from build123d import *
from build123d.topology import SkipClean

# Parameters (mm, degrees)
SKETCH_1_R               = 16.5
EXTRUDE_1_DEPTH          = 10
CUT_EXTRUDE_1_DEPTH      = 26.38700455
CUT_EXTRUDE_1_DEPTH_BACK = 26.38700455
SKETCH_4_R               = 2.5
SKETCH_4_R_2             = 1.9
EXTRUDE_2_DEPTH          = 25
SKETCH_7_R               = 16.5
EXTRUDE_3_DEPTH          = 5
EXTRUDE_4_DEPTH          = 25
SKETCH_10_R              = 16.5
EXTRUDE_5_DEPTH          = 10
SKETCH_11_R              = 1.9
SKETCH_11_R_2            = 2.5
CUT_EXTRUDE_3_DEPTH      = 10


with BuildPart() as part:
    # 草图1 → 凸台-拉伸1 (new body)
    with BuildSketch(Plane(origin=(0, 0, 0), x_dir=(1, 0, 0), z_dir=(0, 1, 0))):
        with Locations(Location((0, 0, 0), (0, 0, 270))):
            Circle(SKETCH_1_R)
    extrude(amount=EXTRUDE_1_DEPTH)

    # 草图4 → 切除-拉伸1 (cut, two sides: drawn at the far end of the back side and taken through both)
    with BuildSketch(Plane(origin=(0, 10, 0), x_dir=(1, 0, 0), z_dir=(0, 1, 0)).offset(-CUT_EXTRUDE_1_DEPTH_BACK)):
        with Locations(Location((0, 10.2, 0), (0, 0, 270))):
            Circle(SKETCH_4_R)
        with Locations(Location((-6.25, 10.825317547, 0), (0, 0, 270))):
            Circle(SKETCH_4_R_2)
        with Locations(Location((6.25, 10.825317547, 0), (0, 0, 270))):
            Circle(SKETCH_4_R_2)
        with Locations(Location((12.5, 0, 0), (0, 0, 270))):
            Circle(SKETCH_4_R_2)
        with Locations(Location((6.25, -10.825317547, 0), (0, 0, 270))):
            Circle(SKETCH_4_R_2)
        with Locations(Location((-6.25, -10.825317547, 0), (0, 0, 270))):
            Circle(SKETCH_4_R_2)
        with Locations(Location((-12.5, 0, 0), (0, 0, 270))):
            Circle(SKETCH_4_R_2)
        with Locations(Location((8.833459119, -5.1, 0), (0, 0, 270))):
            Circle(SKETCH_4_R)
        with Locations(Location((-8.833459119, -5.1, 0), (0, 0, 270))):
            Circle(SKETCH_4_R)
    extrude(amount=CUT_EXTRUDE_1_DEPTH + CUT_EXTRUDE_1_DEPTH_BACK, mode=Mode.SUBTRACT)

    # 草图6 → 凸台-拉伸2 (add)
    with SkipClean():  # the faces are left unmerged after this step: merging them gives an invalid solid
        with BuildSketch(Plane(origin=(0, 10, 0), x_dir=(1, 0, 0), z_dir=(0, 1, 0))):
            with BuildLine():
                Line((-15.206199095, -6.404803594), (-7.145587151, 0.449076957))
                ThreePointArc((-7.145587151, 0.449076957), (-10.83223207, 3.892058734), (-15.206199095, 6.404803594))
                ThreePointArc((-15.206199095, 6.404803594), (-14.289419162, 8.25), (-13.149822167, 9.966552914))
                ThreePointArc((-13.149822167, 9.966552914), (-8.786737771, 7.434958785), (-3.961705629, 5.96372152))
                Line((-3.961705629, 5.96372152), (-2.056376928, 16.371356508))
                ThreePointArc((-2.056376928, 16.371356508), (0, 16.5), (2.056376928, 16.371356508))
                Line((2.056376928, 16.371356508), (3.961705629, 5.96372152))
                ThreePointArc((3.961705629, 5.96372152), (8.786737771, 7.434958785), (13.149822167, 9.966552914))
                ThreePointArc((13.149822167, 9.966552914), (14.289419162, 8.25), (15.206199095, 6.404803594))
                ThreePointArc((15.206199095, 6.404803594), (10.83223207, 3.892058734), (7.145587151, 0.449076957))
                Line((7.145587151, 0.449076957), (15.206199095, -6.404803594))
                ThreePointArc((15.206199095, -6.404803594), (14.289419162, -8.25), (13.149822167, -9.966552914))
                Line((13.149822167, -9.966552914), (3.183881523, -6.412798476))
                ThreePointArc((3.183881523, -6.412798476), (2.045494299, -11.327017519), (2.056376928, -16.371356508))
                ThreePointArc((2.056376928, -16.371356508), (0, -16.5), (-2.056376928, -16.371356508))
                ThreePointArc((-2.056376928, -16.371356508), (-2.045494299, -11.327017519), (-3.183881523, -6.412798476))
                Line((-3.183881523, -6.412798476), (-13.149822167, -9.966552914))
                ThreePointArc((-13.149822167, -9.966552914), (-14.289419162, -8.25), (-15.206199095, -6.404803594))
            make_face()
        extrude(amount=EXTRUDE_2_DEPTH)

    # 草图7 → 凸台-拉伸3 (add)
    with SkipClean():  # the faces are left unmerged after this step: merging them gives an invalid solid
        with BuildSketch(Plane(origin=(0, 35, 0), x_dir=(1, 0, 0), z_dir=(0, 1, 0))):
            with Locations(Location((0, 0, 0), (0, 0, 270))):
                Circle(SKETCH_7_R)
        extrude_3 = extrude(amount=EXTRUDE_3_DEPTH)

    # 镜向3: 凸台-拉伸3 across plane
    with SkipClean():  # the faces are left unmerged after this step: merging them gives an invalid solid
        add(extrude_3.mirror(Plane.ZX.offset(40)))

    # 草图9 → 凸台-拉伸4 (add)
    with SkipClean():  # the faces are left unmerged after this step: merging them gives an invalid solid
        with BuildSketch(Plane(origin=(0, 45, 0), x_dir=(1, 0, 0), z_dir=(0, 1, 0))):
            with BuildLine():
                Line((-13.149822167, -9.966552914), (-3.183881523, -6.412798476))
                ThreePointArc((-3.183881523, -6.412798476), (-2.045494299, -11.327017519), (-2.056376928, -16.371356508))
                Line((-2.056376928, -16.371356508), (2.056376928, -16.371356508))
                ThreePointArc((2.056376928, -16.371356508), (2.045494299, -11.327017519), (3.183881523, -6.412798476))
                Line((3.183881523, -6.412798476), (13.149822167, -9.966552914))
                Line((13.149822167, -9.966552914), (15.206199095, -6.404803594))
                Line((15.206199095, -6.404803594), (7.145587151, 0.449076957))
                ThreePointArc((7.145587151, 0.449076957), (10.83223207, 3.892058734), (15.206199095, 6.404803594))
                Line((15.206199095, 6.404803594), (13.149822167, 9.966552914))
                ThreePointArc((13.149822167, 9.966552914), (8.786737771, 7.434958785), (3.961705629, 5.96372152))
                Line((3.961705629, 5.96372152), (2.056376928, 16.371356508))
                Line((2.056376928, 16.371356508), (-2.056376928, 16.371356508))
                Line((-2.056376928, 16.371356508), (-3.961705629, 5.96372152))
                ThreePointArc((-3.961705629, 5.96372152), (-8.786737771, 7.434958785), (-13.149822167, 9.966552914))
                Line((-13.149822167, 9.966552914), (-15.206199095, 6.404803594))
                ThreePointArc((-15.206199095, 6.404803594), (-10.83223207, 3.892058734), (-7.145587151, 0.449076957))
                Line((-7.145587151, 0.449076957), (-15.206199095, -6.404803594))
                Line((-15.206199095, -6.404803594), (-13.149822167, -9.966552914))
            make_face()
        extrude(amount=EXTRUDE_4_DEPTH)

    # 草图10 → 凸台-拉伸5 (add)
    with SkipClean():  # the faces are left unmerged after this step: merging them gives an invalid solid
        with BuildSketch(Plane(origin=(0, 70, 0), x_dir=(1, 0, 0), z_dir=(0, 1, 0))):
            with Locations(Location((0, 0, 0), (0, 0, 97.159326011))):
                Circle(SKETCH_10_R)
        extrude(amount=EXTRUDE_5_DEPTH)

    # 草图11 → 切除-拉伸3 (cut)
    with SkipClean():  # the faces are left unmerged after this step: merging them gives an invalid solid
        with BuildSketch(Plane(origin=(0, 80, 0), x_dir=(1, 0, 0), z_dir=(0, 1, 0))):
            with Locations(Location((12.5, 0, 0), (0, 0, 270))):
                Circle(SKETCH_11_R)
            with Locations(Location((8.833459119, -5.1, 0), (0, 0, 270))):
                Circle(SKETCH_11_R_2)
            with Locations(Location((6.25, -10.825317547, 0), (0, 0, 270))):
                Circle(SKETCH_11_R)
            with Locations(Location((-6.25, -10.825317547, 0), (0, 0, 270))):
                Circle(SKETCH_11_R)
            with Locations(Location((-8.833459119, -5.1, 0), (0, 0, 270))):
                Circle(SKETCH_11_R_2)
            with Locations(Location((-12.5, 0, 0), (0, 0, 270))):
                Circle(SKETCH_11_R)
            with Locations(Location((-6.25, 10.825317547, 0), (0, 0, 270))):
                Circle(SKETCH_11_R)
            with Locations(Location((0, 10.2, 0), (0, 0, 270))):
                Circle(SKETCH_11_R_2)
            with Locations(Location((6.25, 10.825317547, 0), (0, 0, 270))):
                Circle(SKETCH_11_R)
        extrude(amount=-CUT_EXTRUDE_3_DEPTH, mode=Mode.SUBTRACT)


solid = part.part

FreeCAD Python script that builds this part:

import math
import FreeCAD as App
import Part
import Sketcher

V = App.Vector
Q = App.Units.Quantity

doc = App.newDocument("Part")
body = doc.addObject("PartDesign::Body", "Body")

sketch1 = body.newObject("Sketcher::SketchObject", "Sketch")
sketch1.AttachmentSupport = (doc.getObject("XZ_Plane"), [""])
sketch1.MapMode = "FlatFace"
sketch1.addGeometry(Part.Circle(V(0, 0, 0), V(0, 0, 1), 16.5), False)
sketch1.addConstraint(Sketcher.Constraint("Coincident", 0, 3, -1, 1))
sketch1.addConstraint(Sketcher.Constraint("Diameter", 0, Q("33 mm")))
pad1 = body.newObject("PartDesign::Pad", "Pad")
pad1.Profile = sketch1
pad1.Length = 10
pad1.Reversed = True

sketch2 = body.newObject("Sketcher::SketchObject", "Sketch001")
sketch2.AttachmentSupport = (doc.getObject("XZ_Plane"), [""])
sketch2.MapMode = "FlatFace"
sketch2.AttachmentOffset = App.Placement(V(0, 0, -10), App.Rotation())
sketch2.addGeometry(Part.Circle(V(0, -10.2, 0), V(0, 0, 1), 2.5), False)
sketch2.addGeometry(Part.Circle(V(-6.25, -10.825318, 0), V(0, 0, 1), 1.9), False)
sketch2.addGeometry(Part.Circle(V(6.25, -10.825318, 0), V(0, 0, 1), 1.9), False)
sketch2.addGeometry(Part.Circle(V(12.5, 0, 0), V(0, 0, 1), 1.9), False)
sketch2.addGeometry(Part.Circle(V(6.25, 10.825318, 0), V(0, 0, 1), 1.9), False)
sketch2.addGeometry(Part.Circle(V(-6.25, 10.825318, 0), V(0, 0, 1), 1.9), False)
sketch2.addGeometry(Part.Circle(V(-12.5, 0, 0), V(0, 0, 1), 1.9), False)
sketch2.addGeometry(Part.Circle(V(8.833459, 5.1, 0), V(0, 0, 1), 2.5), False)
sketch2.addGeometry(Part.Circle(V(-8.833459, 5.1, 0), V(0, 0, 1), 2.5), False)
sketch2.addConstraint(Sketcher.Constraint("Equal", 1, 2))
sketch2.addConstraint(Sketcher.Constraint("Equal", 2, 3))
sketch2.addConstraint(Sketcher.Constraint("Equal", 3, 4))
sketch2.addConstraint(Sketcher.Constraint("Equal", 4, 5))
sketch2.addConstraint(Sketcher.Constraint("Equal", 5, 6))
sketch2.addConstraint(Sketcher.Constraint("Equal", 0, 7))
sketch2.addConstraint(Sketcher.Constraint("Equal", 7, 8))
sketch2.addConstraint(Sketcher.Constraint("Symmetric", 1, 3, 4, 3, -1, 1))
sketch2.addConstraint(Sketcher.Constraint("Symmetric", 2, 3, 5, 3, -1, 1))
sketch2.addConstraint(Sketcher.Constraint("Symmetric", 3, 3, 6, 3, -1, 1))
sketch2.addConstraint(Sketcher.Constraint("Symmetric", 1, 3, 2, 3, -2))
sketch2.addConstraint(Sketcher.Constraint("Symmetric", 7, 3, 8, 3, -2))
sketch2.addConstraint(Sketcher.Constraint("PointOnObject", 0, 3, -2))
sketch2.addConstraint(Sketcher.Constraint("PointOnObject", 3, 3, -1))
sketch2.addConstraint(Sketcher.Constraint("Diameter", 0, Q("5 mm")))
sketch2.addConstraint(Sketcher.Constraint("Diameter", 1, Q("3.8 mm")))
sketch2.addConstraint(Sketcher.Constraint("DistanceY", 0, 3, -1, 1, Q("10.2 mm")))
sketch2.addConstraint(Sketcher.Constraint("DistanceX", -1, 1, 3, 3, Q("12.5 mm")))
sketch2.addConstraint(Sketcher.Constraint("DistanceY", -1, 1, 7, 3, Q("5.1 mm")))
sketch2.addConstraint(Sketcher.Constraint("DistanceX", 1, 3, 2, 3, Q("12.5 mm")))
sketch2.addConstraint(Sketcher.Constraint("DistanceX", -1, 1, 7, 3, Q("8.833459 mm")))
sketch2.addConstraint(Sketcher.Constraint("DistanceY", 1, 3, -1, 1, Q("10.825318 mm")))
pocket1 = body.newObject("PartDesign::Pocket", "Pocket")
pocket1.Profile = sketch2
pocket1.Type = "ThroughAll"
pocket1.Midplane = True

sketch3 = body.newObject("Sketcher::SketchObject", "Sketch002")
sketch3.AttachmentSupport = (doc.getObject("XZ_Plane"), [""])
sketch3.MapMode = "FlatFace"
sketch3.AttachmentOffset = App.Placement(V(0, 0, -10), App.Rotation())
sketch3.addGeometry(Part.LineSegment(V(-7.145587, -0.449077, 0), V(-15.206199, 6.404804, 0)), False)
sketch3.addGeometry(Part.ArcOfCircle(Part.Circle(V(0, 0, 0), V(0, 0, 1), 16.5), math.radians(142.840674), math.radians(157.159326)), False)
sketch3.addGeometry(Part.LineSegment(V(-13.149822, 9.966553, 0), V(-3.183882, 6.412798, 0)), False)
sketch3.addGeometry(Part.ArcOfCircle(Part.Circle(V(-23.90583, 13.802037, 0), V(0, 0, 1), 22), math.radians(-19.625724), math.radians(6.706721)), False)
sketch3.addGeometry(Part.ArcOfCircle(Part.Circle(V(0, 0, 0), V(0, 0, 1), 16.5), math.radians(82.840674), math.radians(97.159326)), False)
sketch3.addGeometry(Part.ArcOfCircle(Part.Circle(V(23.90583, 13.802037, 0), V(0, 0, 1), 22), math.radians(173.293279), math.radians(199.625724)), False)
sketch3.addGeometry(Part.LineSegment(V(3.183882, 6.412798, 0), V(13.149822, 9.966553, 0)), False)
sketch3.addGeometry(Part.ArcOfCircle(Part.Circle(V(0, 0, 0), V(0, 0, 1), 16.5), math.radians(22.840674), math.radians(37.159326)), False)
sketch3.addGeometry(Part.LineSegment(V(15.206199, 6.404804, 0), V(7.145587, -0.449077, 0)), False)
sketch3.addGeometry(Part.ArcOfCircle(Part.Circle(V(23.90583, 13.802037, 0), V(0, 0, 1), 22), math.radians(-139.625724), math.radians(-113.293279)), False)
sketch3.addGeometry(Part.ArcOfCircle(Part.Circle(V(0, 0, 0), V(0, 0, 1), 16.5), math.radians(-37.159326), math.radians(-22.840674)), False)
sketch3.addGeometry(Part.ArcOfCircle(Part.Circle(V(0, -27.604075, 0), V(0, 0, 1), 22), math.radians(53.293279), math.radians(79.625724)), False)
sketch3.addGeometry(Part.LineSegment(V(3.961706, -5.963722, 0), V(2.056377, -16.371357, 0)), False)
sketch3.addGeometry(Part.ArcOfCircle(Part.Circle(V(0, 0, 0), V(0, 0, 1), 16.5), math.radians(-97.159326), math.radians(-82.840674)), False)
sketch3.addGeometry(Part.LineSegment(V(-2.056377, -16.371357, 0), V(-3.961706, -5.963722, 0)), False)
sketch3.addGeometry(Part.ArcOfCircle(Part.Circle(V(0, -27.604075, 0), V(0, 0, 1), 22), math.radians(100.374276), math.radians(126.706721)), False)
sketch3.addGeometry(Part.ArcOfCircle(Part.Circle(V(0, 0, 0), V(0, 0, 1), 16.5), math.radians(-157.159326), math.radians(-142.840674)), False)
sketch3.addGeometry(Part.ArcOfCircle(Part.Circle(V(-23.90583, 13.802037, 0), V(0, 0, 1), 22), math.radians(-66.706721), math.radians(-40.374276)), False)
sketch3.addConstraint(Sketcher.Constraint("Coincident", 0, 2, 1, 2))
sketch3.addConstraint(Sketcher.Constraint("Coincident", 1, 1, 2, 1))
sketch3.addConstraint(Sketcher.Constraint("Coincident", 2, 2, 3, 1))
sketch3.addConstraint(Sketcher.Constraint("Coincident", 3, 2, 4, 2))
sketch3.addConstraint(Sketcher.Constraint("Coincident", 4, 1, 5, 1))
sketch3.addConstraint(Sketcher.Constraint("Coincident", 5, 2, 6, 1))
sketch3.addConstraint(Sketcher.Constraint("Coincident", 6, 2, 7, 2))
sketch3.addConstraint(Sketcher.Constraint("Coincident", 7, 1, 8, 1))
sketch3.addConstraint(Sketcher.Constraint("Coincident", 8, 2, 9, 1))
sketch3.addConstraint(Sketcher.Constraint("Coincident", 9, 2, 10, 2))
sketch3.addConstraint(Sketcher.Constraint("Coincident", 10, 1, 11, 1))
sketch3.addConstraint(Sketcher.Constraint("Coincident", 11, 2, 12, 1))
sketch3.addConstraint(Sketcher.Constraint("Coincident", 12, 2, 13, 2))
sketch3.addConstraint(Sketcher.Constraint("Coincident", 13, 1, 14, 1))
sketch3.addConstraint(Sketcher.Constraint("Coincident", 14, 2, 15, 1))
sketch3.addConstraint(Sketcher.Constraint("Coincident", 15, 2, 16, 2))
sketch3.addConstraint(Sketcher.Constraint("Coincident", 16, 1, 17, 1))
sketch3.addConstraint(Sketcher.Constraint("Coincident", 17, 2, 0, 1))
sketch3.addConstraint(Sketcher.Constraint("Coincident", 1, 3, -1, 1))
sketch3.addConstraint(Sketcher.Constraint("Coincident", 4, 3, -1, 1))
sketch3.addConstraint(Sketcher.Constraint("Coincident", 7, 3, -1, 1))
sketch3.addConstraint(Sketcher.Constraint("Coincident", 10, 3, -1, 1))
sketch3.addConstraint(Sketcher.Constraint("Coincident", 13, 3, -1, 1))
sketch3.addConstraint(Sketcher.Constraint("Coincident", 16, 3, -1, 1))
sketch3.addConstraint(Sketcher.Constraint("Coincident", 9, 3, 5, 3))
sketch3.addConstraint(Sketcher.Constraint("Coincident", 15, 3, 11, 3))
sketch3.addConstraint(Sketcher.Constraint("Coincident", 17, 3, 3, 3))
sketch3.addConstraint(Sketcher.Constraint("Equal", 1, 4))
sketch3.addConstraint(Sketcher.Constraint("Equal", 3, 5))
sketch3.addConstraint(Sketcher.Constraint("Equal", 4, 7))
sketch3.addConstraint(Sketcher.Constraint("Equal", 5, 9))
sketch3.addConstraint(Sketcher.Constraint("Equal", 7, 10))
sketch3.addConstraint(Sketcher.Constraint("Equal", 9, 11))
sketch3.addConstraint(Sketcher.Constraint("Equal", 10, 13))
sketch3.addConstraint(Sketcher.Constraint("Equal", 11, 15))
sketch3.addConstraint(Sketcher.Constraint("Equal", 13, 16))
sketch3.addConstraint(Sketcher.Constraint("Equal", 15, 17))
sketch3.addConstraint(Sketcher.Constraint("Symmetric", 3, 3, 5, 3, -2))
sketch3.addConstraint(Sketcher.Constraint("Symmetric", 11, 2, 14, 2, -2))
sketch3.addConstraint(Sketcher.Constraint("Horizontal", 2, 2, 5, 2))
sketch3.addConstraint(Sketcher.Constraint("Horizontal", 1, 1, 6, 2))
sketch3.addConstraint(Sketcher.Constraint("Horizontal", 0, 2, 7, 1))
sketch3.addConstraint(Sketcher.Constraint("Horizontal", 12, 2, 13, 1))
sketch3.addConstraint(Sketcher.Constraint("Horizontal", 8, 2, 17, 2))
sketch3.addConstraint(Sketcher.Constraint("Vertical", 7, 1, 9, 2))
sketch3.addConstraint(Sketcher.Constraint("Vertical", 6, 2, 10, 1))
sketch3.addConstraint(Sketcher.Constraint("Vertical", 4, 1, 12, 2))
sketch3.addConstraint(Sketcher.Constraint("Equal", 0, 2))
sketch3.addConstraint(Sketcher.Constraint("Equal", 8, 12))
sketch3.addConstraint(Sketcher.Constraint("Radius", 3, Q("22 mm")))
sketch3.addConstraint(Sketcher.Constraint("Radius", 1, Q("16.5 mm")))
sketch3.addConstraint(Sketcher.Constraint("DistanceX", 0, 2, -1, 1, Q("15.206199 mm")))
sketch3.addConstraint(Sketcher.Constraint("DistanceY", -1, 1, 2, 2, Q("6.412798 mm")))
sketch3.addConstraint(Sketcher.Constraint("DistanceY", 11, 2, -1, 1, Q("5.963722 mm")))
sketch3.addConstraint(Sketcher.Constraint("DistanceX", 8, 2, 9, 2, Q("8.060612 mm")))
pad2 = body.newObject("PartDesign::Pad", "Pad001")
pad2.Profile = sketch3
pad2.Length = 25
pad2.Reversed = True

sketch4 = body.newObject("Sketcher::SketchObject", "Sketch003")
sketch4.AttachmentSupport = (doc.getObject("XZ_Plane"), [""])
sketch4.MapMode = "FlatFace"
sketch4.AttachmentOffset = App.Placement(V(0, 0, -35), App.Rotation())
sketch4.addGeometry(Part.Circle(V(0, 0, 0), V(0, 0, 1), 16.5), False)
sketch4.addConstraint(Sketcher.Constraint("Coincident", 0, 3, -1, 1))
sketch4.addConstraint(Sketcher.Constraint("Diameter", 0, Q("33 mm")))
pad3 = body.newObject("PartDesign::Pad", "Pad002")
pad3.Profile = sketch4
pad3.Length = 5
pad3.Reversed = True
doc.recompute()

datumplane = body.newObject("PartDesign::Plane", "DatumPlane")
datumplane.AttachmentSupport = (doc.getObject("XZ_Plane"), [""])
datumplane.MapMode = "FlatFace"
datumplane.AttachmentOffset = App.Placement(V(0, 0, -40), App.Rotation())
mirrored = body.newObject("PartDesign::Mirrored", "Mirrored")
mirrored.Originals = [pad3]
mirrored.MirrorPlane = (datumplane, [""])
body.Tip = mirrored

sketch5 = body.newObject("Sketcher::SketchObject", "Sketch004")
sketch5.AttachmentSupport = (doc.getObject("XZ_Plane"), [""])
sketch5.MapMode = "FlatFace"
sketch5.AttachmentOffset = App.Placement(V(0, 0, -45), App.Rotation())
sketch5.addGeometry(Part.LineSegment(V(-13.149822, 9.966553, 0), V(-3.183882, 6.412798, 0)), False)
sketch5.addGeometry(Part.ArcOfCircle(Part.Circle(V(-23.90583, 13.802037, 0), V(0, 0, 1), 22), math.radians(-19.625724), math.radians(6.706721)), False)
sketch5.addGeometry(Part.LineSegment(V(-2.056377, 16.371357, 0), V(2.056377, 16.371357, 0)), False)
sketch5.addGeometry(Part.ArcOfCircle(Part.Circle(V(23.90583, 13.802037, 0), V(0, 0, 1), 22), math.radians(173.293279), math.radians(199.625724)), False)
sketch5.addGeometry(Part.LineSegment(V(3.183882, 6.412798, 0), V(13.149822, 9.966553, 0)), False)
sketch5.addGeometry(Part.LineSegment(V(13.149822, 9.966553, 0), V(15.206199, 6.404804, 0)), False)
sketch5.addGeometry(Part.LineSegment(V(15.206199, 6.404804, 0), V(7.145587, -0.449077, 0)), False)
sketch5.addGeometry(Part.ArcOfCircle(Part.Circle(V(23.90583, 13.802037, 0), V(0, 0, 1), 22), math.radians(-139.625724), math.radians(-113.293279)), False)
sketch5.addGeometry(Part.LineSegment(V(15.206199, -6.404804, 0), V(13.149822, -9.966553, 0)), False)
sketch5.addGeometry(Part.ArcOfCircle(Part.Circle(V(0, -27.604075, 0), V(0, 0, 1), 22), math.radians(53.293279), math.radians(79.625724)), False)
sketch5.addGeometry(Part.LineSegment(V(3.961706, -5.963722, 0), V(2.056377, -16.371357, 0)), False)
sketch5.addGeometry(Part.LineSegment(V(2.056377, -16.371357, 0), V(-2.056377, -16.371357, 0)), False)
sketch5.addGeometry(Part.LineSegment(V(-2.056377, -16.371357, 0), V(-3.961706, -5.963722, 0)), False)
sketch5.addGeometry(Part.ArcOfCircle(Part.Circle(V(0, -27.604075, 0), V(0, 0, 1), 22), math.radians(100.374276), math.radians(126.706721)), False)
sketch5.addGeometry(Part.LineSegment(V(-13.149822, -9.966553, 0), V(-15.206199, -6.404804, 0)), False)
sketch5.addGeometry(Part.ArcOfCircle(Part.Circle(V(-23.90583, 13.802037, 0), V(0, 0, 1), 22), math.radians(-66.706721), math.radians(-40.374276)), False)
sketch5.addGeometry(Part.LineSegment(V(-7.145587, -0.449077, 0), V(-15.206199, 6.404804, 0)), False)
sketch5.addGeometry(Part.LineSegment(V(-15.206199, 6.404804, 0), V(-13.149822, 9.966553, 0)), False)
sketch5.addConstraint(Sketcher.Constraint("Coincident", 0, 2, 1, 1))
sketch5.addConstraint(Sketcher.Constraint("Coincident", 1, 2, 2, 1))
sketch5.addConstraint(Sketcher.Constraint("Coincident", 2, 2, 3, 1))
sketch5.addConstraint(Sketcher.Constraint("Coincident", 3, 2, 4, 1))
sketch5.addConstraint(Sketcher.Constraint("Coincident", 4, 2, 5, 1))
sketch5.addConstraint(Sketcher.Constraint("Coincident", 5, 2, 6, 1))
sketch5.addConstraint(Sketcher.Constraint("Coincident", 6, 2, 7, 1))
sketch5.addConstraint(Sketcher.Constraint("Coincident", 7, 2, 8, 1))
sketch5.addConstraint(Sketcher.Constraint("Coincident", 8, 2, 9, 1))
sketch5.addConstraint(Sketcher.Constraint("Coincident", 9, 2, 10, 1))
sketch5.addConstraint(Sketcher.Constraint("Coincident", 10, 2, 11, 1))
sketch5.addConstraint(Sketcher.Constraint("Coincident", 11, 2, 12, 1))
sketch5.addConstraint(Sketcher.Constraint("Coincident", 12, 2, 13, 1))
sketch5.addConstraint(Sketcher.Constraint("Coincident", 13, 2, 14, 1))
sketch5.addConstraint(Sketcher.Constraint("Coincident", 14, 2, 15, 1))
sketch5.addConstraint(Sketcher.Constraint("Coincident", 15, 2, 16, 1))
sketch5.addConstraint(Sketcher.Constraint("Coincident", 16, 2, 17, 1))
sketch5.addConstraint(Sketcher.Constraint("Coincident", 17, 2, 0, 1))
sketch5.addConstraint(Sketcher.Constraint("Horizontal", 2))
sketch5.addConstraint(Sketcher.Constraint("Horizontal", 11))
sketch5.addConstraint(Sketcher.Constraint("Coincident", 7, 3, 3, 3))
sketch5.addConstraint(Sketcher.Constraint("Coincident", 13, 3, 9, 3))
sketch5.addConstraint(Sketcher.Constraint("Coincident", 15, 3, 1, 3))
sketch5.addConstraint(Sketcher.Constraint("Equal", 1, 3))
sketch5.addConstraint(Sketcher.Constraint("Equal", 3, 7))
sketch5.addConstraint(Sketcher.Constraint("Equal", 7, 9))
sketch5.addConstraint(Sketcher.Constraint("Equal", 9, 13))
sketch5.addConstraint(Sketcher.Constraint("Equal", 13, 15))
sketch5.addConstraint(Sketcher.Constraint("Symmetric", 1, 2, 10, 2, -1, 1))
sketch5.addConstraint(Sketcher.Constraint("Symmetric", 4, 2, 13, 2, -1, 1))
sketch5.addConstraint(Sketcher.Constraint("Symmetric", 5, 2, 14, 2, -1, 1))
sketch5.addConstraint(Sketcher.Constraint("Symmetric", 7, 2, 16, 2, -1, 1))
sketch5.addConstraint(Sketcher.Constraint("Symmetric", 8, 2, 17, 2, -1, 1))
sketch5.addConstraint(Sketcher.Constraint("Symmetric", 1, 3, 3, 3, -2))
sketch5.addConstraint(Sketcher.Constraint("Symmetric", 9, 2, 12, 2, -2))
sketch5.addConstraint(Sketcher.Constraint("Horizontal", 0, 2, 3, 2))
sketch5.addConstraint(Sketcher.Constraint("Horizontal", 8, 2, 13, 2))
sketch5.addConstraint(Sketcher.Constraint("Horizontal", 7, 2, 14, 2))
sketch5.addConstraint(Sketcher.Constraint("Horizontal", 6, 2, 15, 2))
sketch5.addConstraint(Sketcher.Constraint("Vertical", 1, 2, 11, 2))
sketch5.addConstraint(Sketcher.Constraint("Equal", 4, 6))
sketch5.addConstraint(Sketcher.Constraint("Equal", 6, 10))
sketch5.addConstraint(Sketcher.Constraint("Radius", 1, Q("22 mm")))
sketch5.addConstraint(Sketcher.Constraint("Angle", 5, Q("-60 deg")))
sketch5.addConstraint(Sketcher.Constraint("DistanceY", -1, 1, 0, 2, Q("6.412798 mm")))
sketch5.addConstraint(Sketcher.Constraint("DistanceX", -1, 1, 5, 2, Q("15.206199 mm")))
sketch5.addConstraint(Sketcher.Constraint("DistanceX", 1, 2, 4, 2, Q("15.206199 mm")))
sketch5.addConstraint(Sketcher.Constraint("DistanceX", 2, 1, 2, 2, Q("4.112754 mm")))
sketch5.addConstraint(Sketcher.Constraint("DistanceY", 9, 2, -1, 1, Q("5.963722 mm")))
sketch5.addConstraint(Sketcher.Constraint("DistanceX", 6, 2, 5, 2, Q("8.060612 mm")))
pad4 = body.newObject("PartDesign::Pad", "Pad003")
pad4.Profile = sketch5
pad4.Length = 25
pad4.Reversed = True

sketch6 = body.newObject("Sketcher::SketchObject", "Sketch005")
sketch6.AttachmentSupport = (doc.getObject("XZ_Plane"), [""])
sketch6.MapMode = "FlatFace"
sketch6.AttachmentOffset = App.Placement(V(0, 0, -70), App.Rotation())
sketch6.addGeometry(Part.Circle(V(0, 0, 0), V(0, 0, 1), 16.5), False)
sketch6.addConstraint(Sketcher.Constraint("Coincident", 0, 3, -1, 1))
sketch6.addConstraint(Sketcher.Constraint("Diameter", 0, Q("33 mm")))
pad5 = body.newObject("PartDesign::Pad", "Pad004")
pad5.Profile = sketch6
pad5.Length = 10
pad5.Reversed = True

sketch7 = body.newObject("Sketcher::SketchObject", "Sketch006")
sketch7.AttachmentSupport = (doc.getObject("XZ_Plane"), [""])
sketch7.MapMode = "FlatFace"
sketch7.AttachmentOffset = App.Placement(V(0, 0, -80), App.Rotation())
sketch7.addGeometry(Part.Circle(V(12.5, 0, 0), V(0, 0, 1), 1.9), False)
sketch7.addGeometry(Part.Circle(V(8.833459, 5.1, 0), V(0, 0, 1), 2.5), False)
sketch7.addGeometry(Part.Circle(V(6.25, 10.825318, 0), V(0, 0, 1), 1.9), False)
sketch7.addGeometry(Part.Circle(V(-6.25, 10.825318, 0), V(0, 0, 1), 1.9), False)
sketch7.addGeometry(Part.Circle(V(-8.833459, 5.1, 0), V(0, 0, 1), 2.5), False)
sketch7.addGeometry(Part.Circle(V(-12.5, 0, 0), V(0, 0, 1), 1.9), False)
sketch7.addGeometry(Part.Circle(V(-6.25, -10.825318, 0), V(0, 0, 1), 1.9), False)
sketch7.addGeometry(Part.Circle(V(0, -10.2, 0), V(0, 0, 1), 2.5), False)
sketch7.addGeometry(Part.Circle(V(6.25, -10.825318, 0), V(0, 0, 1), 1.9), False)
sketch7.addConstraint(Sketcher.Constraint("Equal", 0, 2))
sketch7.addConstraint(Sketcher.Constraint("Equal", 2, 3))
sketch7.addConstraint(Sketcher.Constraint("Equal", 1, 4))
sketch7.addConstraint(Sketcher.Constraint("Equal", 3, 5))
sketch7.addConstraint(Sketcher.Constraint("Equal", 5, 6))
sketch7.addConstraint(Sketcher.Constraint("Equal", 4, 7))
sketch7.addConstraint(Sketcher.Constraint("Equal", 6, 8))
sketch7.addConstraint(Sketcher.Constraint("Symmetric", 0, 3, 5, 3, -1, 1))
sketch7.addConstraint(Sketcher.Constraint("Symmetric", 2, 3, 6, 3, -1, 1))
sketch7.addConstraint(Sketcher.Constraint("Symmetric", 3, 3, 8, 3, -1, 1))
sketch7.addConstraint(Sketcher.Constraint("Symmetric", 2, 3, 3, 3, -2))
sketch7.addConstraint(Sketcher.Constraint("Symmetric", 1, 3, 4, 3, -2))
sketch7.addConstraint(Sketcher.Constraint("PointOnObject", 0, 3, -1))
sketch7.addConstraint(Sketcher.Constraint("PointOnObject", 7, 3, -2))
sketch7.addConstraint(Sketcher.Constraint("Diameter", 1, Q("5 mm")))
sketch7.addConstraint(Sketcher.Constraint("Diameter", 0, Q("3.8 mm")))
sketch7.addConstraint(Sketcher.Constraint("DistanceX", 5, 3, 0, 3, Q("25 mm")))
sketch7.addConstraint(Sketcher.Constraint("DistanceY", -1, 1, 1, 3, Q("5.1 mm")))
sketch7.addConstraint(Sketcher.Constraint("DistanceY", 7, 3, -1, 1, Q("10.2 mm")))
sketch7.addConstraint(Sketcher.Constraint("DistanceX", 3, 3, 2, 3, Q("12.5 mm")))
sketch7.addConstraint(Sketcher.Constraint("DistanceX", -1, 1, 1, 3, Q("8.833459 mm")))
sketch7.addConstraint(Sketcher.Constraint("DistanceY", -1, 1, 2, 3, Q("10.825318 mm")))
pocket2 = body.newObject("PartDesign::Pocket", "Pocket001")
pocket2.Profile = sketch7
pocket2.Length = 10
pocket2.Reversed = True

doc.recompute()
